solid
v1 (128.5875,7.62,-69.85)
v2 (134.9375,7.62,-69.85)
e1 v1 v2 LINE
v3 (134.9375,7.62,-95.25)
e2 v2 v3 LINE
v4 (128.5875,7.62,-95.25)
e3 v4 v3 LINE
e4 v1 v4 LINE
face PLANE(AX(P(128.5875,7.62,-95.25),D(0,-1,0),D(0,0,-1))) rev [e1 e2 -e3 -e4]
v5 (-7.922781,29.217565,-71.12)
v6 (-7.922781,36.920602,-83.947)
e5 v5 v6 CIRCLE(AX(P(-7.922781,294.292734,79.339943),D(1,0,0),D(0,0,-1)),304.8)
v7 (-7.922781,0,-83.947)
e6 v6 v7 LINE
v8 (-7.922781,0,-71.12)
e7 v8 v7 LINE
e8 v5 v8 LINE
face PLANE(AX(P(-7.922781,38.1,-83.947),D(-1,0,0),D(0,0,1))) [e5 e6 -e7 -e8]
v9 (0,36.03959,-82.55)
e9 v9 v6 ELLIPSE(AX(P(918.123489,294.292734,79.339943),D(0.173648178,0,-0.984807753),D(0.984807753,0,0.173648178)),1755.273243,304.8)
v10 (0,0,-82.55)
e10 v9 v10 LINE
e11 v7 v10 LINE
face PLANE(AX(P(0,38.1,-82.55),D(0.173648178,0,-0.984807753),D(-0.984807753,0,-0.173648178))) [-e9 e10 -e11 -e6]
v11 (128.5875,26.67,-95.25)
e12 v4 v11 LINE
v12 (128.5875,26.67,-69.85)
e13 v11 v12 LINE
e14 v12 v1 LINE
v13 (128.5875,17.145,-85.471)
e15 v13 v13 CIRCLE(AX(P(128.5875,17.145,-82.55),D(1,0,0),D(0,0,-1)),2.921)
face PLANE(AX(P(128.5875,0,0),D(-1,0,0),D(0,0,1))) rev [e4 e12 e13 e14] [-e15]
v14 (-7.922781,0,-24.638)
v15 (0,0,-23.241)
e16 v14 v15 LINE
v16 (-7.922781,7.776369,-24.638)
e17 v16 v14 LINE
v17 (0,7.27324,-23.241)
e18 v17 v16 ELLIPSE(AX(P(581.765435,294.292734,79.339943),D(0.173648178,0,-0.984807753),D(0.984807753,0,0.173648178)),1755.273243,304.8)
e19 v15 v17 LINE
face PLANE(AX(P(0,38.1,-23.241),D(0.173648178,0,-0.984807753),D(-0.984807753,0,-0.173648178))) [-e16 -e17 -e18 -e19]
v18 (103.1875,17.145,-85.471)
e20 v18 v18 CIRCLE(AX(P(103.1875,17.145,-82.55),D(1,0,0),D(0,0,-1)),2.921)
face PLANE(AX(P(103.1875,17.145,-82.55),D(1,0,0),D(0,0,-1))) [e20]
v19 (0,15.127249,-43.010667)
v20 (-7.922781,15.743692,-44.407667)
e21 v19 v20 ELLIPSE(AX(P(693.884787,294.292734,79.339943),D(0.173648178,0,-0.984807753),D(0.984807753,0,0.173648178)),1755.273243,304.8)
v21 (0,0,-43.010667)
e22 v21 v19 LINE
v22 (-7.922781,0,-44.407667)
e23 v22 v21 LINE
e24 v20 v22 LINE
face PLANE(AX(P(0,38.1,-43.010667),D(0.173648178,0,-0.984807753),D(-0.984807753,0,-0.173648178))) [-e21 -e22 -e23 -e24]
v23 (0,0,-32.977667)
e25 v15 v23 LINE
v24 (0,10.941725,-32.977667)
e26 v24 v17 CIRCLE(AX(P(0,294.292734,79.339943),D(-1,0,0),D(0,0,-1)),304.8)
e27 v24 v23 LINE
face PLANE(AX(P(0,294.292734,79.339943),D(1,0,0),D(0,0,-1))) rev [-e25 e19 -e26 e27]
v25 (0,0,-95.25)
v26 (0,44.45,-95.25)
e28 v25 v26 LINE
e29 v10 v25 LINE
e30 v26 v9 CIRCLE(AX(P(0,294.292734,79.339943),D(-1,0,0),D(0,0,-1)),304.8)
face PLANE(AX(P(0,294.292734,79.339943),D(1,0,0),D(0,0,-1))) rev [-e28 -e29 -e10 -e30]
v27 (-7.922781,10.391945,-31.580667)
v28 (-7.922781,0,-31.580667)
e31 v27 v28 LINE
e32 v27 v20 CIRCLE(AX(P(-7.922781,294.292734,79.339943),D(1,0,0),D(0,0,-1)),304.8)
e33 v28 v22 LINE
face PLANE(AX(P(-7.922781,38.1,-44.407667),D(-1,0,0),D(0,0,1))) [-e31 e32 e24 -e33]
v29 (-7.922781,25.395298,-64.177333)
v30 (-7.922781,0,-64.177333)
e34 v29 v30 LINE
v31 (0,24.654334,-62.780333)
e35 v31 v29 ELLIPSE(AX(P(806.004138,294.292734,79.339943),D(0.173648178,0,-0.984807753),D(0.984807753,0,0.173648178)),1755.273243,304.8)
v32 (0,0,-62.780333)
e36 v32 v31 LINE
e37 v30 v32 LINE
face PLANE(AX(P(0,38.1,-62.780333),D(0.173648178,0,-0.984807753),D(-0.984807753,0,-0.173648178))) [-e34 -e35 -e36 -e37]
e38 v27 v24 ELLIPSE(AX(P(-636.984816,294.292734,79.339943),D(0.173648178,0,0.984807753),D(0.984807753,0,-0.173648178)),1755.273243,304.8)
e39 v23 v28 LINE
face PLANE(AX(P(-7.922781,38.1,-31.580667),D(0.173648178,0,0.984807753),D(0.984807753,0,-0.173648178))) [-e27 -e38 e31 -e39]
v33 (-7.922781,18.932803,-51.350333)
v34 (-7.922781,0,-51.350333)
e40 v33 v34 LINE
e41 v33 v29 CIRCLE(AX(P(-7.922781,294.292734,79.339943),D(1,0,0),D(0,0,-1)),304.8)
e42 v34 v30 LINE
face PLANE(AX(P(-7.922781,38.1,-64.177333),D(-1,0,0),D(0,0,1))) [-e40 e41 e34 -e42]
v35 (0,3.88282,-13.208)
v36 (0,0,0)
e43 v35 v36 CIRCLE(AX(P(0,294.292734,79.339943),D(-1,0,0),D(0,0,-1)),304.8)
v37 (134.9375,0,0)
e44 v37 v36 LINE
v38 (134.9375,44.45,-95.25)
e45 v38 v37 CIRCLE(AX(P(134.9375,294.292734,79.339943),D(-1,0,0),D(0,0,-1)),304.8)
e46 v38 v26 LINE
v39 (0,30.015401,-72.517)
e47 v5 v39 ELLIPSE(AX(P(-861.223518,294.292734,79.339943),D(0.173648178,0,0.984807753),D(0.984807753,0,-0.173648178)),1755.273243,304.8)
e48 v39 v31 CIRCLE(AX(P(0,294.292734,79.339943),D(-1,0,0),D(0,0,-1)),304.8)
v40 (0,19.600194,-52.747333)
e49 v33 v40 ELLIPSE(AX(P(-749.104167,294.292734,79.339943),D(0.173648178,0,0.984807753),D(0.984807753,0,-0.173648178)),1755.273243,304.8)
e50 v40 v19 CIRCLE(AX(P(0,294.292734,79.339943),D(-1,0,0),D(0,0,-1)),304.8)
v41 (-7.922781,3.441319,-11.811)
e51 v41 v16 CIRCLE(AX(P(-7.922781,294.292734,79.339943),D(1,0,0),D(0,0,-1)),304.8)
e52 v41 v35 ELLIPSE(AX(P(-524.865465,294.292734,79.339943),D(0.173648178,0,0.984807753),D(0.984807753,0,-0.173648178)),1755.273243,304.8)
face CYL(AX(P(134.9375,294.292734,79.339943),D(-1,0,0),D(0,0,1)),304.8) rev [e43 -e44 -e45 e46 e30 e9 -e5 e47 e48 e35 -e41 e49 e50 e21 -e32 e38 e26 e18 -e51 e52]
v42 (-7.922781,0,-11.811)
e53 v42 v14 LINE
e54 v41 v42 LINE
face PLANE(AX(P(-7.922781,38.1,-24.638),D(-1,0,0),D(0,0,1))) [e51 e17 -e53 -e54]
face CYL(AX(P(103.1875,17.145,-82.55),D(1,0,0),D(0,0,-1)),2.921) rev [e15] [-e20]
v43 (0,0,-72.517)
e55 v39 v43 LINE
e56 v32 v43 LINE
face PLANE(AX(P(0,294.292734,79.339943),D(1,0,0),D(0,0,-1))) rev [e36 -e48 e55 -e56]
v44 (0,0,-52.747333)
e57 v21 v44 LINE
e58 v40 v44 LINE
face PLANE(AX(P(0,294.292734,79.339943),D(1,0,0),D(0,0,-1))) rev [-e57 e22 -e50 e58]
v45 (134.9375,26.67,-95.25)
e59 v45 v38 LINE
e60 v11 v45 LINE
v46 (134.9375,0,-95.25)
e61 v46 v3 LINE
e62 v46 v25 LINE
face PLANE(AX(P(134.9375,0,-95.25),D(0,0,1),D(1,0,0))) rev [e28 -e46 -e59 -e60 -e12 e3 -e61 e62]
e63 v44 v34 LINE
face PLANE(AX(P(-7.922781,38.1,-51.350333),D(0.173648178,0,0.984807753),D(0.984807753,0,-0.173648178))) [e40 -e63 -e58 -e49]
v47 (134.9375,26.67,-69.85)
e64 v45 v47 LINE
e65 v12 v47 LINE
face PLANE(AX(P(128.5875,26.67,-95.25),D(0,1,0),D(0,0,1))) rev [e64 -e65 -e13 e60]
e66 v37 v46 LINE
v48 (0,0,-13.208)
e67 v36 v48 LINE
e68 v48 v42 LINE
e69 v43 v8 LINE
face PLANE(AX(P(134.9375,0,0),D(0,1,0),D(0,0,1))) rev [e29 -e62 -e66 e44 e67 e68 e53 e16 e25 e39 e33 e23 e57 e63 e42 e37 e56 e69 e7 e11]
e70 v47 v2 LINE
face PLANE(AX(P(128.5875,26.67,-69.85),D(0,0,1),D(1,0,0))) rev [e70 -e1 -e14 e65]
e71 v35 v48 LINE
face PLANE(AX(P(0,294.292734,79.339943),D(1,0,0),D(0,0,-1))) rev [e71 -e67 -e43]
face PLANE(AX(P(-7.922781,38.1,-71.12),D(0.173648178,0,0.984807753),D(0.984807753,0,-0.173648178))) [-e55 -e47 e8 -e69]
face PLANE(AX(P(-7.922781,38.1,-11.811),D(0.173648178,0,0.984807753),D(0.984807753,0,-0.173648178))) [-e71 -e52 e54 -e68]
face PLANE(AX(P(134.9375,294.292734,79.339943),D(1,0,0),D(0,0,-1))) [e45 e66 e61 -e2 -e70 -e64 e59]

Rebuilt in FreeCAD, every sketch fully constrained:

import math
import FreeCAD as App
import Part
import Sketcher

V = App.Vector
Q = App.Units.Quantity

doc = App.newDocument("Part")
body = doc.addObject("PartDesign::Body", "Body")

# Sketch on YZ plane
sketch1 = body.newObject("Sketcher::SketchObject", "Sketch")
sketch1.AttachmentSupport = (doc.getObject("YZ_Plane"), [""])
sketch1.MapMode = "FlatFace"
sketch1.addGeometry([
    Part.LineSegment(V(0, 0, 0), V(0, -95, 0)),
    Part.LineSegment(V(0, -95, 0), V(44, -95, 0)),
    Part.ArcOfCircle(Part.Circle(V(294, 79, 0), V(0, 0, 1), 305), math.radians(-164.91), math.radians(-145.05)),
], False)
sketch1.addConstraint([
    Sketcher.Constraint("Coincident", 0, 2, 1, 1),
    Sketcher.Constraint("Coincident", 1, 2, 2, 2),
    Sketcher.Constraint("Coincident", 2, 1, 0, 1),
    Sketcher.Constraint("Vertical", 0),
    Sketcher.Constraint("Horizontal", 1),
    Sketcher.Constraint("Coincident", 2, 1, -1, 1),
    Sketcher.Constraint("Radius", 2, Q("12 in")),
    Sketcher.Constraint("DistanceX", 1, 1, 1, 2, Q("1.75 in")),
    Sketcher.Constraint("DistanceY", 0, 2, 0, 1, Q("3.75 in")),
])
pad1 = body.newObject("PartDesign::Pad", "Pad")
pad1.Profile = sketch1
pad1.Length = Q("5.3125 in")

# Sketch on YZ plane
sketch2 = body.newObject("Sketcher::SketchObject", "Sketch001")
sketch2.AttachmentSupport = (doc.getObject("YZ_Plane"), [""])
sketch2.MapMode = "FlatFace"
sketch2.AttachmentOffset = App.Placement(V(0, 0, 5.3125 * 25.4), App.Rotation())
sketch2.addGeometry([
    Part.LineSegment(V(27, -70, 0), V(8, -70, 0)),
    Part.LineSegment(V(8, -70, 0), V(8, -95, 0)),
    Part.LineSegment(V(8, -95, 0), V(27, -95, 0)),
    Part.LineSegment(V(27, -95, 0), V(27, -70, 0)),
], False)
sketch2.addConstraint([
    Sketcher.Constraint("Coincident", 0, 2, 1, 1),
    Sketcher.Constraint("Coincident", 1, 2, 2, 1),
    Sketcher.Constraint("Coincident", 2, 2, 3, 1),
    Sketcher.Constraint("Coincident", 3, 2, 0, 1),
    Sketcher.Constraint("Horizontal", 0),
    Sketcher.Constraint("Vertical", 1),
    Sketcher.Constraint("Horizontal", 2),
    Sketcher.Constraint("Vertical", 3),
    Sketcher.Constraint("DistanceY", 1, 2, 1, 1, Q("1 in")),
    Sketcher.Constraint("DistanceX", 0, 2, 0, 1, Q("0.75 in")),
    Sketcher.Constraint("DistanceX", -1, 1, 0, 2, Q("0.3 in")),
    Sketcher.Constraint("DistanceY", 0, 2, -1, 1, Q("2.75 in")),
])
pocket1 = body.newObject("PartDesign::Pocket", "Pocket")
pocket1.Profile = sketch2
pocket1.Length = Q("0.25 in")

# Sketch on YZ plane
sketch3 = body.newObject("Sketcher::SketchObject", "Sketch002")
sketch3.AttachmentSupport = (doc.getObject("YZ_Plane"), [""])
sketch3.MapMode = "FlatFace"
sketch3.AttachmentOffset = App.Placement(V(0, 0, 5.0625 * 25.4), App.Rotation())
sketch3.addGeometry(Part.Circle(V(17.1, -82.5, 0), V(0, 0, 1), 2.9), False)
sketch3.addConstraint([
    Sketcher.Constraint("Diameter", 0, Q("0.23 in")),
    Sketcher.Constraint("DistanceY", 0, 3, -1, 1, Q("3.25 in")),
    Sketcher.Constraint("DistanceX", -1, 1, 0, 3, Q("0.675 in")),
])
pocket2 = body.newObject("PartDesign::Pocket", "Pocket001")
pocket2.Profile = sketch3
pocket2.Length = Q("1 in")

# Sketch on XZ plane
sketch4 = body.newObject("Sketcher::SketchObject", "Sketch003")
sketch4.AttachmentSupport = (doc.getObject("XZ_Plane"), [""])
sketch4.MapMode = "FlatFace"
sketch4.addGeometry([
    Part.LineSegment(V(-8, -84, 0), V(0, -83, 0)),  # 0
    Part.LineSegment(V(0, -83, 0), V(0, -73, 0)),  # 1
    Part.LineSegment(V(0, -73, 0), V(-8, -71, 0)),  # 2
    Part.LineSegment(V(-8, -71, 0), V(-8, -84, 0)),  # 3
    Part.LineSegment(V(-8, -64, 0), V(0, -63, 0)),  # 4
    Part.LineSegment(V(0, -63, 0), V(0, -53, 0)),  # 5
    Part.LineSegment(V(0, -53, 0), V(-8, -51, 0)),  # 6
    Part.LineSegment(V(-8, -51, 0), V(-8, -64, 0)),  # 7
    Part.LineSegment(V(-8, -44, 0), V(0, -43, 0)),  # 8
    Part.LineSegment(V(0, -43, 0), V(0, -33, 0)),  # 9
    Part.LineSegment(V(0, -33, 0), V(-8, -32, 0)),  # 10
    Part.LineSegment(V(-8, -32, 0), V(-8, -44, 0)),  # 11
    Part.LineSegment(V(-8, -25, 0), V(0, -23, 0)),  # 12
    Part.LineSegment(V(0, -23, 0), V(0, -13, 0)),  # 13
    Part.LineSegment(V(0, -13, 0), V(-8, -12, 0)),  # 14
    Part.LineSegment(V(-8, -12, 0), V(-8, -25, 0)),  # 15
], False)
sketch4.addConstraint([
    Sketcher.Constraint("Coincident", 0, 2, 1, 1),
    Sketcher.Constraint("Coincident", 1, 2, 2, 1),
    Sketcher.Constraint("Coincident", 2, 2, 3, 1),
    Sketcher.Constraint("Coincident", 3, 2, 0, 1),
    Sketcher.Constraint("Coincident", 4, 2, 5, 1),
    Sketcher.Constraint("Coincident", 5, 2, 6, 1),
    Sketcher.Constraint("Coincident", 6, 2, 7, 1),
    Sketcher.Constraint("Coincident", 7, 2, 4, 1),
    Sketcher.Constraint("Coincident", 8, 2, 9, 1),
    Sketcher.Constraint("Coincident", 9, 2, 10, 1),
    Sketcher.Constraint("Coincident", 10, 2, 11, 1),
    Sketcher.Constraint("Coincident", 11, 2, 8, 1),
    Sketcher.Constraint("Coincident", 12, 2, 13, 1),
    Sketcher.Constraint("Coincident", 13, 2, 14, 1),
    Sketcher.Constraint("Coincident", 14, 2, 15, 1),
    Sketcher.Constraint("Coincident", 15, 2, 12, 1),
    Sketcher.Constraint("Vertical", 1),
    Sketcher.Constraint("Vertical", 3),
    Sketcher.Constraint("Vertical", 5),
    Sketcher.Constraint("Vertical", 7),
    Sketcher.Constraint("Vertical", 9),
    Sketcher.Constraint("Vertical", 11),
    Sketcher.Constraint("Vertical", 13),
    Sketcher.Constraint("Vertical", 15),
    Sketcher.Constraint("PointOnObject", 0, 2, -2),
    Sketcher.Constraint("PointOnObject", 4, 2, -2),
    Sketcher.Constraint("PointOnObject", 8, 2, -2),
    Sketcher.Constraint("PointOnObject", 12, 2, -2),
    Sketcher.Constraint("Parallel", 0, 4),
    Sketcher.Constraint("Parallel", 2, 6),
    Sketcher.Constraint("Parallel", 4, 8),
    Sketcher.Constraint("Parallel", 6, 10),
    Sketcher.Constraint("Parallel", 8, 12),
    Sketcher.Constraint("Parallel", 10, 14),
    Sketcher.Constraint("Vertical", 3, 2, 6, 2),
    Sketcher.Constraint("Vertical", 7, 2, 10, 2),
    Sketcher.Constraint("Vertical", 11, 2, 14, 2),
    Sketcher.Constraint("Equal", 1, 5),
    Sketcher.Constraint("Equal", 5, 9),
    Sketcher.Constraint("Equal", 9, 13),
    Sketcher.Constraint("Equal", 0, 2),
    Sketcher.Constraint("Angle", 0, Q("10 deg")),
    Sketcher.Constraint("DistanceY", 2, 2, -1, 1, Q("2.8 in")),
    Sketcher.Constraint("DistanceY", 1, 1, 1, 2, Q("0.395 in")),
    Sketcher.Constraint("DistanceY", 3, 2, 3, 1, Q("0.505 in")),
    Sketcher.Constraint("DistanceY", 13, 2, -1, 1, Q("0.52 in")),
    Sketcher.Constraint("DistanceY", 4, 2, -1, 1, 62.780333),
    Sketcher.Constraint("DistanceY", 8, 2, -1, 1, 43.010667),
])
pad2 = body.newObject("PartDesign::Pad", "Pad001")
pad2.Profile = sketch4
pad2.Length = Q("1.5 in")
pad2.Reversed = True

# Sketch on YZ plane
sketch5 = body.newObject("Sketcher::SketchObject", "Sketch004")
sketch5.AttachmentSupport = (doc.getObject("YZ_Plane"), [""])
sketch5.MapMode = "FlatFace"
sketch5.AttachmentOffset = App.Placement(V(0, 0, 5.3125 * 25.4), App.Rotation())
sketch5.addGeometry([
    Part.LineSegment(V(44, -95, 0), V(44, 0, 0)),
    Part.LineSegment(V(44, 0, 0), V(0, 0, 0)),
    Part.ArcOfCircle(Part.Circle(V(294, 79, 0), V(0, 0, 1), 305), math.radians(-164.91), math.radians(-145.05)),
], False)
sketch5.addConstraint([
    Sketcher.Constraint("Coincident", 0, 2, 1, 1),
    Sketcher.Constraint("Coincident", 1, 2, 2, 1),
    Sketcher.Constraint("Coincident", 2, 2, 0, 1),
    Sketcher.Constraint("Vertical", 0),
    Sketcher.Constraint("Horizontal", 1),
    Sketcher.Constraint("Coincident", 1, 2, -1, 1),
    Sketcher.Constraint("Radius", 2, Q("12 in")),
    Sketcher.Constraint("DistanceX", 1, 2, 1, 1, Q("1.75 in")),
    Sketcher.Constraint("DistanceY", 0, 1, 0, 2, Q("3.75 in")),
])
pocket3 = body.newObject("PartDesign::Pocket", "Pocket002")
pocket3.Profile = sketch5
pocket3.Type = "ThroughAll"

doc.recompute()
